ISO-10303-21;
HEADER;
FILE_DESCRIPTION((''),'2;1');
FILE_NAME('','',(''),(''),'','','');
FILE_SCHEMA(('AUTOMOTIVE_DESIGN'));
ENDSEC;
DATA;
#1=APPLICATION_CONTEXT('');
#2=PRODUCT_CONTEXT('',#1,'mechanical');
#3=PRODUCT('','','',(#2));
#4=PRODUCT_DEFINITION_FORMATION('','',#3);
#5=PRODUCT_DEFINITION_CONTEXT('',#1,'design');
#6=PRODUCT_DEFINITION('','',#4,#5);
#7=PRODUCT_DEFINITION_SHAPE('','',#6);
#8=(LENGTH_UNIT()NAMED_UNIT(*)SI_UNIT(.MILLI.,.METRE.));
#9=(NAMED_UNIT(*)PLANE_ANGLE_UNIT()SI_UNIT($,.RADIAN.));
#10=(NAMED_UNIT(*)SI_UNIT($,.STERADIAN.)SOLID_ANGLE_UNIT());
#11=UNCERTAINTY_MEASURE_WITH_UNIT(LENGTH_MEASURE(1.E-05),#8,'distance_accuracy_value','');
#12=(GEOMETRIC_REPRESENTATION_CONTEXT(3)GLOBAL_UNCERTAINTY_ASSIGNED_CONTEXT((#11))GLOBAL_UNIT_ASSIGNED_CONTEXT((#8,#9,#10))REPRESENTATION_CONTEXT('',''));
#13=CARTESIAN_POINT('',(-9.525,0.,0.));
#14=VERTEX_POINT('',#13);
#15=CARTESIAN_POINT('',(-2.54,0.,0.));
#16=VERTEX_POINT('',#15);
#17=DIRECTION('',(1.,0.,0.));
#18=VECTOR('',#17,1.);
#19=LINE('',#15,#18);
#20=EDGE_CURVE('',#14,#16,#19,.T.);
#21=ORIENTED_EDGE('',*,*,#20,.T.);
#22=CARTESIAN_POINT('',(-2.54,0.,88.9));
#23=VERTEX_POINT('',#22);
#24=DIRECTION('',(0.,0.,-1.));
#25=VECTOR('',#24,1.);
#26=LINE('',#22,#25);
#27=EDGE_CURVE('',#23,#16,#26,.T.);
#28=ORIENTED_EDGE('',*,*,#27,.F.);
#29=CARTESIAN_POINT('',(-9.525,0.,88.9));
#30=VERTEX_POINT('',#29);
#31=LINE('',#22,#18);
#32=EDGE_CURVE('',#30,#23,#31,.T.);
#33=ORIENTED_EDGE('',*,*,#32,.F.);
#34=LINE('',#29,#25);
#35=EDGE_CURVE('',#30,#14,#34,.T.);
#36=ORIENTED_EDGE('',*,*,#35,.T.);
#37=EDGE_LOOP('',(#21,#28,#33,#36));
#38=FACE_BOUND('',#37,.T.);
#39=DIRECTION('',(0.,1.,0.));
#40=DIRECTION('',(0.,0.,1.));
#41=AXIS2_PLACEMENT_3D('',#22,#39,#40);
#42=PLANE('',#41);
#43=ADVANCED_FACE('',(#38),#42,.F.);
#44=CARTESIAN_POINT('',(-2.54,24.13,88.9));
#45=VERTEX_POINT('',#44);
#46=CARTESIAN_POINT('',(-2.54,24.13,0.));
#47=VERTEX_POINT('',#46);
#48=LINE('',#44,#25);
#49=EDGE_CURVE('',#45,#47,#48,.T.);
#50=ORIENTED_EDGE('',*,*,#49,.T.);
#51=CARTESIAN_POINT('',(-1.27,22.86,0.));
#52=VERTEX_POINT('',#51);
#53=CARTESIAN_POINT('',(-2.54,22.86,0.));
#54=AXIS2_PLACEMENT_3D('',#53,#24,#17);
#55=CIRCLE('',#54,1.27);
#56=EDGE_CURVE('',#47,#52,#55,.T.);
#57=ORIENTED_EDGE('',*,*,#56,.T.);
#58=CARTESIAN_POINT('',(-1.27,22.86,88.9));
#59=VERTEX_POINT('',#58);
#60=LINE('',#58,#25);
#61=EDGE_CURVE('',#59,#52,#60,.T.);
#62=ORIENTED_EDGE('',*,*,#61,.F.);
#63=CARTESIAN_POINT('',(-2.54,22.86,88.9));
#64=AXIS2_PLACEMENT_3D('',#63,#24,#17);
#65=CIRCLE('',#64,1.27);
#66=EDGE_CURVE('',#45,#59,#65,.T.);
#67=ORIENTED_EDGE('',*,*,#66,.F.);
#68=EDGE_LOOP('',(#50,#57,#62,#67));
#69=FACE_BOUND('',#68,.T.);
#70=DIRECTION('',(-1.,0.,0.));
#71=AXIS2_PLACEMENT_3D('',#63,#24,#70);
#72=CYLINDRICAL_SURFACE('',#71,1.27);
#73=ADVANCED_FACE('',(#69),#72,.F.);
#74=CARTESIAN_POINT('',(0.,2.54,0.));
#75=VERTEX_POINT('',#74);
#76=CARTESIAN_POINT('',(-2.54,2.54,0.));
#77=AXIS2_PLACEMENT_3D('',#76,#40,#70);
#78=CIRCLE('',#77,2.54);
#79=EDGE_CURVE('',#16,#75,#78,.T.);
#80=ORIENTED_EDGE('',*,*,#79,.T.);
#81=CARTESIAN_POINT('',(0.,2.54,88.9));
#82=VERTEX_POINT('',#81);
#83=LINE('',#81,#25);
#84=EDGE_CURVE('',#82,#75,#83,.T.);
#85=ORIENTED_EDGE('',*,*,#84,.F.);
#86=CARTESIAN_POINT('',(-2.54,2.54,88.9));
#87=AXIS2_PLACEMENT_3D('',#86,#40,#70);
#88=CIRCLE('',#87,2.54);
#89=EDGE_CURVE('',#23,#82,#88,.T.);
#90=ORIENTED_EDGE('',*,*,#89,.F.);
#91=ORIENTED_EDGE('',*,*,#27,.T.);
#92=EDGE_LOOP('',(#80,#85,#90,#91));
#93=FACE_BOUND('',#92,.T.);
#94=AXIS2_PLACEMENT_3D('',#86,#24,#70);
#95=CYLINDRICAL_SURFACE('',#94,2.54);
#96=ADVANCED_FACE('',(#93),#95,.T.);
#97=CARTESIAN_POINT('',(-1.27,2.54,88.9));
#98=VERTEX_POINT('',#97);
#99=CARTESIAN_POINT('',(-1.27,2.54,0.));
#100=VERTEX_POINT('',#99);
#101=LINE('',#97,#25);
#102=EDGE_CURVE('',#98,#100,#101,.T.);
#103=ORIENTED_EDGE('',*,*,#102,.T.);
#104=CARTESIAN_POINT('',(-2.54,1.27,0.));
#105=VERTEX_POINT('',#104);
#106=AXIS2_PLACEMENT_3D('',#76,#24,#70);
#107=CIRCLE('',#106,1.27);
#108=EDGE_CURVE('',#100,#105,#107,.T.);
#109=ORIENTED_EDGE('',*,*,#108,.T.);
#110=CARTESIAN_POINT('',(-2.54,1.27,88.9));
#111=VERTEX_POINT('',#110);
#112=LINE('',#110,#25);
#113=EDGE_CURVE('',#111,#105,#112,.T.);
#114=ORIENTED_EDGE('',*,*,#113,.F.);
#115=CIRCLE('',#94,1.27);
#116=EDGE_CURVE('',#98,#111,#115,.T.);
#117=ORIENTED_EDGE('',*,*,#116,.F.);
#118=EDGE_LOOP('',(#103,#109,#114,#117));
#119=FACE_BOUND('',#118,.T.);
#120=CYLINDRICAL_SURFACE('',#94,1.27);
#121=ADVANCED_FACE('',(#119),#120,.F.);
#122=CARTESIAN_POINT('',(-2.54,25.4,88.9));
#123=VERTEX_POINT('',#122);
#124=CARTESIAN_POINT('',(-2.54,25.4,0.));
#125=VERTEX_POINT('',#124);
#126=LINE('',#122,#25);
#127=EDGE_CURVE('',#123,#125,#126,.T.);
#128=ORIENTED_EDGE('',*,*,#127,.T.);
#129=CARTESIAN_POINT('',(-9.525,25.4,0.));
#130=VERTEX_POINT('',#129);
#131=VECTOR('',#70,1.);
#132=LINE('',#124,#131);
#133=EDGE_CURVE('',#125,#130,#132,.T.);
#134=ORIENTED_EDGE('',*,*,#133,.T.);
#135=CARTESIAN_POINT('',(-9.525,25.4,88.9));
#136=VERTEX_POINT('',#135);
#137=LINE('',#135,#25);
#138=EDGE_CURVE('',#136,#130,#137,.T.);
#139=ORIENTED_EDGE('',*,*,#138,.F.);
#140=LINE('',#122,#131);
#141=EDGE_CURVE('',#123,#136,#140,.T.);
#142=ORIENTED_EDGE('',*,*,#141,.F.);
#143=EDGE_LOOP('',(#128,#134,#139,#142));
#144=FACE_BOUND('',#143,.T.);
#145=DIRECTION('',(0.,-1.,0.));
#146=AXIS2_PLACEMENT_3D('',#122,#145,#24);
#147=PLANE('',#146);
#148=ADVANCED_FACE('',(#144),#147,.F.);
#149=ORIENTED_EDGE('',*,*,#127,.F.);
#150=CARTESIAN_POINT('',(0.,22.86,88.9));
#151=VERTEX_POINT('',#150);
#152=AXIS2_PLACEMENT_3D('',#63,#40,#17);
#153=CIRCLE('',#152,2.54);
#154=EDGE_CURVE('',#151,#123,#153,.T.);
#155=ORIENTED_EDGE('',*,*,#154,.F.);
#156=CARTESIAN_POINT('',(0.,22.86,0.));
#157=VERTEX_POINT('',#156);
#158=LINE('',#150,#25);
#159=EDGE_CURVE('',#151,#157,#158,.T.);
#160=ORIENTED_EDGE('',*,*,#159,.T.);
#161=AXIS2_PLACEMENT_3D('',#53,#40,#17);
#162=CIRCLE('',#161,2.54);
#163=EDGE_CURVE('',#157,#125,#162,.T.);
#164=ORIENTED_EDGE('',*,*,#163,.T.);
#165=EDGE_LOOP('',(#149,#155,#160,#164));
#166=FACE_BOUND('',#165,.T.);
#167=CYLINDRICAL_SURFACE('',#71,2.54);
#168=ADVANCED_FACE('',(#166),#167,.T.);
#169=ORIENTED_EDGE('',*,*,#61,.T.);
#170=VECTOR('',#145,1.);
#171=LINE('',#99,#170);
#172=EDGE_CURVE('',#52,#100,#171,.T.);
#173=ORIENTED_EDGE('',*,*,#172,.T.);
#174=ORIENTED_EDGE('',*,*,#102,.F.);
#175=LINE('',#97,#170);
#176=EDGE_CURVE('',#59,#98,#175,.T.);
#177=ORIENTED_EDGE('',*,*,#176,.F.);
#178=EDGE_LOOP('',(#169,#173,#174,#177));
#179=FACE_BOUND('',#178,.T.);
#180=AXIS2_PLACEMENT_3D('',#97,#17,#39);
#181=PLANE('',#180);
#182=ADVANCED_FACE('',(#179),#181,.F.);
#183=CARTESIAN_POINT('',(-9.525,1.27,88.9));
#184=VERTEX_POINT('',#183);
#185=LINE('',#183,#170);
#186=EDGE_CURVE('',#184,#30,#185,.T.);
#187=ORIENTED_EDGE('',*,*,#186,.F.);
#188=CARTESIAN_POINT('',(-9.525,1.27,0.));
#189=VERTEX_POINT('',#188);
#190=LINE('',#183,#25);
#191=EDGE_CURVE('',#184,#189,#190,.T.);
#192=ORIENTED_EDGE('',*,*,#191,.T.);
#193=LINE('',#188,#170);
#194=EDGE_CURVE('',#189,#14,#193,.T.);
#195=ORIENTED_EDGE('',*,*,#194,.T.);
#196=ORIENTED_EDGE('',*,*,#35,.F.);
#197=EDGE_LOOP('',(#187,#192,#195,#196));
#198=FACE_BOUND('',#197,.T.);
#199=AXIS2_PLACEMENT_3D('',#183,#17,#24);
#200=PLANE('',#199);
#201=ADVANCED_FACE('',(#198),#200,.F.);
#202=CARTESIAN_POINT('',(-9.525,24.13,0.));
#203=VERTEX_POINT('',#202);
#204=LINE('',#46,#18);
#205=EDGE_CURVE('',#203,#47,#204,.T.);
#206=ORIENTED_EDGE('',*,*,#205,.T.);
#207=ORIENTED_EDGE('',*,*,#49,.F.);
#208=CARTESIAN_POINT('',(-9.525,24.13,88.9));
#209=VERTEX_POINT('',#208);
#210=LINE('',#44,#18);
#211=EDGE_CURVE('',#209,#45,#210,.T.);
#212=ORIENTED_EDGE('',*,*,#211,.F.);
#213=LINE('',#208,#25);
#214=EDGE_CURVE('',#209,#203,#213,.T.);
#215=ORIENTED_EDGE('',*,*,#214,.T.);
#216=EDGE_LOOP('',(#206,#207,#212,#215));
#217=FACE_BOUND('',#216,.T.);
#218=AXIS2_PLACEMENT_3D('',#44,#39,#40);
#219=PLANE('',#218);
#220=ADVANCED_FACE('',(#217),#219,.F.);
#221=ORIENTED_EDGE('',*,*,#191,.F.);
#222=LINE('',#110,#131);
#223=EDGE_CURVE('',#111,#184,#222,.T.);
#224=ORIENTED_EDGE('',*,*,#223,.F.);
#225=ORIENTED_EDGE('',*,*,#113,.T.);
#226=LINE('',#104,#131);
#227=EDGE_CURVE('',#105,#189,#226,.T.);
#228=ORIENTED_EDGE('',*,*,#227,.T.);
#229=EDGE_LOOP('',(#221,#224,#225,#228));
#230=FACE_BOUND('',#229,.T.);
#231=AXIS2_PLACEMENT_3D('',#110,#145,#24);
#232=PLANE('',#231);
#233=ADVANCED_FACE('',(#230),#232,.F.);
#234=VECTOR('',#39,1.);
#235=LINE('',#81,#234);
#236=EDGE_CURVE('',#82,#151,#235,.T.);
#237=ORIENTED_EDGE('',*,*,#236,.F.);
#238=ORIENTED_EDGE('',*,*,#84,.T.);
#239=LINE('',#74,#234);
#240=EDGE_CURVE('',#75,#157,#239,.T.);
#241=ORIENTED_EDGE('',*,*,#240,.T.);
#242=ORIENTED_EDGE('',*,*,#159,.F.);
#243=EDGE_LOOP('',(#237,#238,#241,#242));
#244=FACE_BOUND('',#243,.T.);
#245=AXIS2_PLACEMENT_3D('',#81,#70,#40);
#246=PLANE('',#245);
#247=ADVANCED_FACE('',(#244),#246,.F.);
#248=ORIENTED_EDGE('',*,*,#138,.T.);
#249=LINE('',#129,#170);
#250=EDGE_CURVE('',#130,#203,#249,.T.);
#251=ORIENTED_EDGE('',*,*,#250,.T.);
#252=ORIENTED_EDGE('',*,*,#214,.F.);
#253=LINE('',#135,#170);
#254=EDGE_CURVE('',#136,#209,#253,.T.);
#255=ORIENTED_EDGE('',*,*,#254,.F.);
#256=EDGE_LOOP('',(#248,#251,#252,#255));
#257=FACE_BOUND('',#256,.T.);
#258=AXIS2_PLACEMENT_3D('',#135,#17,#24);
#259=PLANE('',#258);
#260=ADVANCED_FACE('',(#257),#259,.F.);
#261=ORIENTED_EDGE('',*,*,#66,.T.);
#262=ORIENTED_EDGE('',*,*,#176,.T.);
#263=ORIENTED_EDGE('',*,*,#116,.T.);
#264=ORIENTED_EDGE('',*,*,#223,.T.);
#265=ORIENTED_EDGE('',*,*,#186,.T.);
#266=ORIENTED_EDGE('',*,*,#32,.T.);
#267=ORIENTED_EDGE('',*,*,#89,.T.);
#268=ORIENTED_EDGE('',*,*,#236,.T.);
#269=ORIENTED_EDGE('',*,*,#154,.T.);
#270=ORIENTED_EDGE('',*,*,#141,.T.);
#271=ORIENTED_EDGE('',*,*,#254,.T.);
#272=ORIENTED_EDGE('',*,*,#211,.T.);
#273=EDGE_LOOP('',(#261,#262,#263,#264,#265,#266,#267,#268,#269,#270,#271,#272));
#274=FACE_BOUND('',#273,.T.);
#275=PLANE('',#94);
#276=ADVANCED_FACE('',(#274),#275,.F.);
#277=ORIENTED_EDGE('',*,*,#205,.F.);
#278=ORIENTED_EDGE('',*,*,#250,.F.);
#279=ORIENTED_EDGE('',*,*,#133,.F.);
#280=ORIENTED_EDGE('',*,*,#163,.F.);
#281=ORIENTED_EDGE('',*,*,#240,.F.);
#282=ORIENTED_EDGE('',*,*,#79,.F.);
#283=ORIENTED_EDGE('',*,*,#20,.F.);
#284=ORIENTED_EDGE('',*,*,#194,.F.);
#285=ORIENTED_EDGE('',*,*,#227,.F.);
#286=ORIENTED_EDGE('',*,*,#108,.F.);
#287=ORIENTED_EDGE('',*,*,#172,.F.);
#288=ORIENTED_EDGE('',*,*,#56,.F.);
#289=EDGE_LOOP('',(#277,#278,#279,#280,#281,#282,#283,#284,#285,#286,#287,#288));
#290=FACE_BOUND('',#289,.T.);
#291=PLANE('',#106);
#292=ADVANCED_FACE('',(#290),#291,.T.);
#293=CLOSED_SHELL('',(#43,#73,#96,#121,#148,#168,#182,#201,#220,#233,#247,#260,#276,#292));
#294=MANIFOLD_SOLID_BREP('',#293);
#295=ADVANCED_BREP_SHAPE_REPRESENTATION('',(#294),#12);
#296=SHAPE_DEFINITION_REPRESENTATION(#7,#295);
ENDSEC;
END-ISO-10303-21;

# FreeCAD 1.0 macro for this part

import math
import FreeCAD as App
import Part
import Sketcher
from FreeCAD import Vector
Q = App.Units.Quantity

doc = App.newDocument("Part")
body = doc.addObject("PartDesign::Body", "Body")

# Sketch on XY plane
sketch1 = doc.addObject("Sketcher::SketchObject", "Sketch")
body.addObject(sketch1)
sketch1.AttachmentSupport = (doc.XY_Plane, [""])
sketch1.MapMode = "FlatFace"
sketch1.addGeometry([
    Part.LineSegment(Vector(0, 2.5, 0), Vector(0, 22.9, 0)),  # 0
    Part.ArcOfCircle(Part.Circle(Vector(-2.5, 22.9, 0), Vector(0, 0, 1), 2.5), math.radians(0), math.radians(90)),  # 1
    Part.LineSegment(Vector(-2.5, 25.4, 0), Vector(-9.5, 25.4, 0)),  # 2
    Part.LineSegment(Vector(-9.5, 25.4, 0), Vector(-9.5, 24.1, 0)),  # 3
    Part.LineSegment(Vector(-9.5, 24.1, 0), Vector(-2.5, 24.1, 0)),  # 4
    Part.ArcOfCircle(Part.Circle(Vector(-2.5, 22.9, 0), Vector(0, 0, 1), 1.3), math.radians(0), math.radians(90)),  # 5
    Part.LineSegment(Vector(-1.3, 22.9, 0), Vector(-1.3, 2.5, 0)),  # 6
    Part.ArcOfCircle(Part.Circle(Vector(-2.5, 2.5, 0), Vector(0, 0, 1), 1.3), math.radians(-90), math.radians(0)),  # 7
    Part.LineSegment(Vector(-2.5, 1.3, 0), Vector(-9.5, 1.3, 0)),  # 8
    Part.LineSegment(Vector(-9.5, 1.3, 0), Vector(-9.5, 0, 0)),  # 9
    Part.LineSegment(Vector(-9.5, 0, 0), Vector(-2.5, 0, 0)),  # 10
    Part.ArcOfCircle(Part.Circle(Vector(-2.5, 2.5, 0), Vector(0, 0, 1), 2.5), math.radians(-90), math.radians(0)),  # 11
], False)
sketch1.addConstraint([
    Sketcher.Constraint("Tangent", 0, 2, 1, 1),
    Sketcher.Constraint("Tangent", 1, 2, 2, 1),
    Sketcher.Constraint("Coincident", 2, 2, 3, 1),
    Sketcher.Constraint("Coincident", 3, 2, 4, 1),
    Sketcher.Constraint("Tangent", 4, 2, 5, 2),
    Sketcher.Constraint("Tangent", 5, 1, 6, 1),
    Sketcher.Constraint("Tangent", 6, 2, 7, 2),
    Sketcher.Constraint("Tangent", 7, 1, 8, 1),
    Sketcher.Constraint("Coincident", 8, 2, 9, 1),
    Sketcher.Constraint("Coincident", 9, 2, 10, 1),
    Sketcher.Constraint("Tangent", 10, 2, 11, 1),
    Sketcher.Constraint("Tangent", 11, 2, 0, 1),
    Sketcher.Constraint("Vertical", 0),
    Sketcher.Constraint("Horizontal", 2),
    Sketcher.Constraint("Vertical", 3),
    Sketcher.Constraint("Horizontal", 4),
    Sketcher.Constraint("Vertical", 6),
    Sketcher.Constraint("Horizontal", 8),
    Sketcher.Constraint("Vertical", 9),
    Sketcher.Constraint("Horizontal", 10),
    Sketcher.Constraint("Coincident", 5, 3, 1, 3),
    Sketcher.Constraint("Coincident", 11, 3, 7, 3),
    Sketcher.Constraint("Equal", 5, 7),
    Sketcher.Constraint("PointOnObject", 0, 2, -2),
    Sketcher.Constraint("PointOnObject", 9, 2, -1),
    Sketcher.Constraint("Vertical", 3, 2, 8, 2),
    Sketcher.Constraint("Radius", 1, Q("0.1 in")),
    Sketcher.Constraint("Radius", 5, Q("0.05 in")),
    Sketcher.Constraint("DistanceY", 0, 1, 0, 2, Q("0.8 in")),
    Sketcher.Constraint("DistanceX", 2, 2, 2, 1, Q("0.275 in")),
])
pad1 = doc.addObject("PartDesign::Pad", "Pad")
body.addObject(pad1)
pad1.Profile = sketch1
pad1.Length = Q("3.5 in")

doc.recompute()
